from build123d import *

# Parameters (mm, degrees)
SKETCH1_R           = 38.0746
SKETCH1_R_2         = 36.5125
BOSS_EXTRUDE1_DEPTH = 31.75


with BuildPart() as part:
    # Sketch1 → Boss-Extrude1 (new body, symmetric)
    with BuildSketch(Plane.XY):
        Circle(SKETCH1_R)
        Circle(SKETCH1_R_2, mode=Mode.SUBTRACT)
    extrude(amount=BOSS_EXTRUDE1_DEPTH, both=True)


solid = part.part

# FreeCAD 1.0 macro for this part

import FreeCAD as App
import Part
import Sketcher
Q = App.Units.Quantity

doc = App.newDocument("Part")
params = doc.addObject("Spreadsheet::Sheet", "Params")
for row, (alias, value) in enumerate([
    ("sketch1_diameter", "2.998 in"),
    ("sketch1_diameter2", "2.875 in"),
    ("pad1_length", "2.5 in"),
], start=1):
    params.set(f"A{row}", alias)
    params.set(f"B{row}", "=" + value)
    params.setAlias(f"B{row}", alias)

body = doc.addObject("PartDesign::Body", "Body")

# Sketch on XY plane
sketch1 = body.newObject("Sketcher::SketchObject", "Sketch")
sketch1.AttachmentSupport = (doc.getObject("XY_Plane"), [""])
sketch1.MapMode = "FlatFace"
sketch1.addGeometry(Part.Circle(App.Vector(0, 0, 0), App.Vector(0, 0, 1), 38.0746), False)
sketch1.addGeometry(Part.Circle(App.Vector(0, 0, 0), App.Vector(0, 0, 1), 36.5125), False)
sketch1.addConstraint(Sketcher.Constraint("Coincident", 0, 3, -1, 1))
sketch1.addConstraint(Sketcher.Constraint("Coincident", 1, 3, -1, 1))
sketch1.addConstraint(Sketcher.Constraint("Diameter", 0, Q("2.998 in")))
sketch1.addConstraint(Sketcher.Constraint("Diameter", 1, Q("2.875 in")))
sketch1.setExpression("Constraints[2]", "Params.sketch1_diameter")
sketch1.setExpression("Constraints[3]", "Params.sketch1_diameter2")
pad1 = body.newObject("PartDesign::Pad", "Pad")
pad1.Profile = sketch1
pad1.setExpression("Length", "Params.pad1_length")
pad1.Midplane = True

doc.recompute()
